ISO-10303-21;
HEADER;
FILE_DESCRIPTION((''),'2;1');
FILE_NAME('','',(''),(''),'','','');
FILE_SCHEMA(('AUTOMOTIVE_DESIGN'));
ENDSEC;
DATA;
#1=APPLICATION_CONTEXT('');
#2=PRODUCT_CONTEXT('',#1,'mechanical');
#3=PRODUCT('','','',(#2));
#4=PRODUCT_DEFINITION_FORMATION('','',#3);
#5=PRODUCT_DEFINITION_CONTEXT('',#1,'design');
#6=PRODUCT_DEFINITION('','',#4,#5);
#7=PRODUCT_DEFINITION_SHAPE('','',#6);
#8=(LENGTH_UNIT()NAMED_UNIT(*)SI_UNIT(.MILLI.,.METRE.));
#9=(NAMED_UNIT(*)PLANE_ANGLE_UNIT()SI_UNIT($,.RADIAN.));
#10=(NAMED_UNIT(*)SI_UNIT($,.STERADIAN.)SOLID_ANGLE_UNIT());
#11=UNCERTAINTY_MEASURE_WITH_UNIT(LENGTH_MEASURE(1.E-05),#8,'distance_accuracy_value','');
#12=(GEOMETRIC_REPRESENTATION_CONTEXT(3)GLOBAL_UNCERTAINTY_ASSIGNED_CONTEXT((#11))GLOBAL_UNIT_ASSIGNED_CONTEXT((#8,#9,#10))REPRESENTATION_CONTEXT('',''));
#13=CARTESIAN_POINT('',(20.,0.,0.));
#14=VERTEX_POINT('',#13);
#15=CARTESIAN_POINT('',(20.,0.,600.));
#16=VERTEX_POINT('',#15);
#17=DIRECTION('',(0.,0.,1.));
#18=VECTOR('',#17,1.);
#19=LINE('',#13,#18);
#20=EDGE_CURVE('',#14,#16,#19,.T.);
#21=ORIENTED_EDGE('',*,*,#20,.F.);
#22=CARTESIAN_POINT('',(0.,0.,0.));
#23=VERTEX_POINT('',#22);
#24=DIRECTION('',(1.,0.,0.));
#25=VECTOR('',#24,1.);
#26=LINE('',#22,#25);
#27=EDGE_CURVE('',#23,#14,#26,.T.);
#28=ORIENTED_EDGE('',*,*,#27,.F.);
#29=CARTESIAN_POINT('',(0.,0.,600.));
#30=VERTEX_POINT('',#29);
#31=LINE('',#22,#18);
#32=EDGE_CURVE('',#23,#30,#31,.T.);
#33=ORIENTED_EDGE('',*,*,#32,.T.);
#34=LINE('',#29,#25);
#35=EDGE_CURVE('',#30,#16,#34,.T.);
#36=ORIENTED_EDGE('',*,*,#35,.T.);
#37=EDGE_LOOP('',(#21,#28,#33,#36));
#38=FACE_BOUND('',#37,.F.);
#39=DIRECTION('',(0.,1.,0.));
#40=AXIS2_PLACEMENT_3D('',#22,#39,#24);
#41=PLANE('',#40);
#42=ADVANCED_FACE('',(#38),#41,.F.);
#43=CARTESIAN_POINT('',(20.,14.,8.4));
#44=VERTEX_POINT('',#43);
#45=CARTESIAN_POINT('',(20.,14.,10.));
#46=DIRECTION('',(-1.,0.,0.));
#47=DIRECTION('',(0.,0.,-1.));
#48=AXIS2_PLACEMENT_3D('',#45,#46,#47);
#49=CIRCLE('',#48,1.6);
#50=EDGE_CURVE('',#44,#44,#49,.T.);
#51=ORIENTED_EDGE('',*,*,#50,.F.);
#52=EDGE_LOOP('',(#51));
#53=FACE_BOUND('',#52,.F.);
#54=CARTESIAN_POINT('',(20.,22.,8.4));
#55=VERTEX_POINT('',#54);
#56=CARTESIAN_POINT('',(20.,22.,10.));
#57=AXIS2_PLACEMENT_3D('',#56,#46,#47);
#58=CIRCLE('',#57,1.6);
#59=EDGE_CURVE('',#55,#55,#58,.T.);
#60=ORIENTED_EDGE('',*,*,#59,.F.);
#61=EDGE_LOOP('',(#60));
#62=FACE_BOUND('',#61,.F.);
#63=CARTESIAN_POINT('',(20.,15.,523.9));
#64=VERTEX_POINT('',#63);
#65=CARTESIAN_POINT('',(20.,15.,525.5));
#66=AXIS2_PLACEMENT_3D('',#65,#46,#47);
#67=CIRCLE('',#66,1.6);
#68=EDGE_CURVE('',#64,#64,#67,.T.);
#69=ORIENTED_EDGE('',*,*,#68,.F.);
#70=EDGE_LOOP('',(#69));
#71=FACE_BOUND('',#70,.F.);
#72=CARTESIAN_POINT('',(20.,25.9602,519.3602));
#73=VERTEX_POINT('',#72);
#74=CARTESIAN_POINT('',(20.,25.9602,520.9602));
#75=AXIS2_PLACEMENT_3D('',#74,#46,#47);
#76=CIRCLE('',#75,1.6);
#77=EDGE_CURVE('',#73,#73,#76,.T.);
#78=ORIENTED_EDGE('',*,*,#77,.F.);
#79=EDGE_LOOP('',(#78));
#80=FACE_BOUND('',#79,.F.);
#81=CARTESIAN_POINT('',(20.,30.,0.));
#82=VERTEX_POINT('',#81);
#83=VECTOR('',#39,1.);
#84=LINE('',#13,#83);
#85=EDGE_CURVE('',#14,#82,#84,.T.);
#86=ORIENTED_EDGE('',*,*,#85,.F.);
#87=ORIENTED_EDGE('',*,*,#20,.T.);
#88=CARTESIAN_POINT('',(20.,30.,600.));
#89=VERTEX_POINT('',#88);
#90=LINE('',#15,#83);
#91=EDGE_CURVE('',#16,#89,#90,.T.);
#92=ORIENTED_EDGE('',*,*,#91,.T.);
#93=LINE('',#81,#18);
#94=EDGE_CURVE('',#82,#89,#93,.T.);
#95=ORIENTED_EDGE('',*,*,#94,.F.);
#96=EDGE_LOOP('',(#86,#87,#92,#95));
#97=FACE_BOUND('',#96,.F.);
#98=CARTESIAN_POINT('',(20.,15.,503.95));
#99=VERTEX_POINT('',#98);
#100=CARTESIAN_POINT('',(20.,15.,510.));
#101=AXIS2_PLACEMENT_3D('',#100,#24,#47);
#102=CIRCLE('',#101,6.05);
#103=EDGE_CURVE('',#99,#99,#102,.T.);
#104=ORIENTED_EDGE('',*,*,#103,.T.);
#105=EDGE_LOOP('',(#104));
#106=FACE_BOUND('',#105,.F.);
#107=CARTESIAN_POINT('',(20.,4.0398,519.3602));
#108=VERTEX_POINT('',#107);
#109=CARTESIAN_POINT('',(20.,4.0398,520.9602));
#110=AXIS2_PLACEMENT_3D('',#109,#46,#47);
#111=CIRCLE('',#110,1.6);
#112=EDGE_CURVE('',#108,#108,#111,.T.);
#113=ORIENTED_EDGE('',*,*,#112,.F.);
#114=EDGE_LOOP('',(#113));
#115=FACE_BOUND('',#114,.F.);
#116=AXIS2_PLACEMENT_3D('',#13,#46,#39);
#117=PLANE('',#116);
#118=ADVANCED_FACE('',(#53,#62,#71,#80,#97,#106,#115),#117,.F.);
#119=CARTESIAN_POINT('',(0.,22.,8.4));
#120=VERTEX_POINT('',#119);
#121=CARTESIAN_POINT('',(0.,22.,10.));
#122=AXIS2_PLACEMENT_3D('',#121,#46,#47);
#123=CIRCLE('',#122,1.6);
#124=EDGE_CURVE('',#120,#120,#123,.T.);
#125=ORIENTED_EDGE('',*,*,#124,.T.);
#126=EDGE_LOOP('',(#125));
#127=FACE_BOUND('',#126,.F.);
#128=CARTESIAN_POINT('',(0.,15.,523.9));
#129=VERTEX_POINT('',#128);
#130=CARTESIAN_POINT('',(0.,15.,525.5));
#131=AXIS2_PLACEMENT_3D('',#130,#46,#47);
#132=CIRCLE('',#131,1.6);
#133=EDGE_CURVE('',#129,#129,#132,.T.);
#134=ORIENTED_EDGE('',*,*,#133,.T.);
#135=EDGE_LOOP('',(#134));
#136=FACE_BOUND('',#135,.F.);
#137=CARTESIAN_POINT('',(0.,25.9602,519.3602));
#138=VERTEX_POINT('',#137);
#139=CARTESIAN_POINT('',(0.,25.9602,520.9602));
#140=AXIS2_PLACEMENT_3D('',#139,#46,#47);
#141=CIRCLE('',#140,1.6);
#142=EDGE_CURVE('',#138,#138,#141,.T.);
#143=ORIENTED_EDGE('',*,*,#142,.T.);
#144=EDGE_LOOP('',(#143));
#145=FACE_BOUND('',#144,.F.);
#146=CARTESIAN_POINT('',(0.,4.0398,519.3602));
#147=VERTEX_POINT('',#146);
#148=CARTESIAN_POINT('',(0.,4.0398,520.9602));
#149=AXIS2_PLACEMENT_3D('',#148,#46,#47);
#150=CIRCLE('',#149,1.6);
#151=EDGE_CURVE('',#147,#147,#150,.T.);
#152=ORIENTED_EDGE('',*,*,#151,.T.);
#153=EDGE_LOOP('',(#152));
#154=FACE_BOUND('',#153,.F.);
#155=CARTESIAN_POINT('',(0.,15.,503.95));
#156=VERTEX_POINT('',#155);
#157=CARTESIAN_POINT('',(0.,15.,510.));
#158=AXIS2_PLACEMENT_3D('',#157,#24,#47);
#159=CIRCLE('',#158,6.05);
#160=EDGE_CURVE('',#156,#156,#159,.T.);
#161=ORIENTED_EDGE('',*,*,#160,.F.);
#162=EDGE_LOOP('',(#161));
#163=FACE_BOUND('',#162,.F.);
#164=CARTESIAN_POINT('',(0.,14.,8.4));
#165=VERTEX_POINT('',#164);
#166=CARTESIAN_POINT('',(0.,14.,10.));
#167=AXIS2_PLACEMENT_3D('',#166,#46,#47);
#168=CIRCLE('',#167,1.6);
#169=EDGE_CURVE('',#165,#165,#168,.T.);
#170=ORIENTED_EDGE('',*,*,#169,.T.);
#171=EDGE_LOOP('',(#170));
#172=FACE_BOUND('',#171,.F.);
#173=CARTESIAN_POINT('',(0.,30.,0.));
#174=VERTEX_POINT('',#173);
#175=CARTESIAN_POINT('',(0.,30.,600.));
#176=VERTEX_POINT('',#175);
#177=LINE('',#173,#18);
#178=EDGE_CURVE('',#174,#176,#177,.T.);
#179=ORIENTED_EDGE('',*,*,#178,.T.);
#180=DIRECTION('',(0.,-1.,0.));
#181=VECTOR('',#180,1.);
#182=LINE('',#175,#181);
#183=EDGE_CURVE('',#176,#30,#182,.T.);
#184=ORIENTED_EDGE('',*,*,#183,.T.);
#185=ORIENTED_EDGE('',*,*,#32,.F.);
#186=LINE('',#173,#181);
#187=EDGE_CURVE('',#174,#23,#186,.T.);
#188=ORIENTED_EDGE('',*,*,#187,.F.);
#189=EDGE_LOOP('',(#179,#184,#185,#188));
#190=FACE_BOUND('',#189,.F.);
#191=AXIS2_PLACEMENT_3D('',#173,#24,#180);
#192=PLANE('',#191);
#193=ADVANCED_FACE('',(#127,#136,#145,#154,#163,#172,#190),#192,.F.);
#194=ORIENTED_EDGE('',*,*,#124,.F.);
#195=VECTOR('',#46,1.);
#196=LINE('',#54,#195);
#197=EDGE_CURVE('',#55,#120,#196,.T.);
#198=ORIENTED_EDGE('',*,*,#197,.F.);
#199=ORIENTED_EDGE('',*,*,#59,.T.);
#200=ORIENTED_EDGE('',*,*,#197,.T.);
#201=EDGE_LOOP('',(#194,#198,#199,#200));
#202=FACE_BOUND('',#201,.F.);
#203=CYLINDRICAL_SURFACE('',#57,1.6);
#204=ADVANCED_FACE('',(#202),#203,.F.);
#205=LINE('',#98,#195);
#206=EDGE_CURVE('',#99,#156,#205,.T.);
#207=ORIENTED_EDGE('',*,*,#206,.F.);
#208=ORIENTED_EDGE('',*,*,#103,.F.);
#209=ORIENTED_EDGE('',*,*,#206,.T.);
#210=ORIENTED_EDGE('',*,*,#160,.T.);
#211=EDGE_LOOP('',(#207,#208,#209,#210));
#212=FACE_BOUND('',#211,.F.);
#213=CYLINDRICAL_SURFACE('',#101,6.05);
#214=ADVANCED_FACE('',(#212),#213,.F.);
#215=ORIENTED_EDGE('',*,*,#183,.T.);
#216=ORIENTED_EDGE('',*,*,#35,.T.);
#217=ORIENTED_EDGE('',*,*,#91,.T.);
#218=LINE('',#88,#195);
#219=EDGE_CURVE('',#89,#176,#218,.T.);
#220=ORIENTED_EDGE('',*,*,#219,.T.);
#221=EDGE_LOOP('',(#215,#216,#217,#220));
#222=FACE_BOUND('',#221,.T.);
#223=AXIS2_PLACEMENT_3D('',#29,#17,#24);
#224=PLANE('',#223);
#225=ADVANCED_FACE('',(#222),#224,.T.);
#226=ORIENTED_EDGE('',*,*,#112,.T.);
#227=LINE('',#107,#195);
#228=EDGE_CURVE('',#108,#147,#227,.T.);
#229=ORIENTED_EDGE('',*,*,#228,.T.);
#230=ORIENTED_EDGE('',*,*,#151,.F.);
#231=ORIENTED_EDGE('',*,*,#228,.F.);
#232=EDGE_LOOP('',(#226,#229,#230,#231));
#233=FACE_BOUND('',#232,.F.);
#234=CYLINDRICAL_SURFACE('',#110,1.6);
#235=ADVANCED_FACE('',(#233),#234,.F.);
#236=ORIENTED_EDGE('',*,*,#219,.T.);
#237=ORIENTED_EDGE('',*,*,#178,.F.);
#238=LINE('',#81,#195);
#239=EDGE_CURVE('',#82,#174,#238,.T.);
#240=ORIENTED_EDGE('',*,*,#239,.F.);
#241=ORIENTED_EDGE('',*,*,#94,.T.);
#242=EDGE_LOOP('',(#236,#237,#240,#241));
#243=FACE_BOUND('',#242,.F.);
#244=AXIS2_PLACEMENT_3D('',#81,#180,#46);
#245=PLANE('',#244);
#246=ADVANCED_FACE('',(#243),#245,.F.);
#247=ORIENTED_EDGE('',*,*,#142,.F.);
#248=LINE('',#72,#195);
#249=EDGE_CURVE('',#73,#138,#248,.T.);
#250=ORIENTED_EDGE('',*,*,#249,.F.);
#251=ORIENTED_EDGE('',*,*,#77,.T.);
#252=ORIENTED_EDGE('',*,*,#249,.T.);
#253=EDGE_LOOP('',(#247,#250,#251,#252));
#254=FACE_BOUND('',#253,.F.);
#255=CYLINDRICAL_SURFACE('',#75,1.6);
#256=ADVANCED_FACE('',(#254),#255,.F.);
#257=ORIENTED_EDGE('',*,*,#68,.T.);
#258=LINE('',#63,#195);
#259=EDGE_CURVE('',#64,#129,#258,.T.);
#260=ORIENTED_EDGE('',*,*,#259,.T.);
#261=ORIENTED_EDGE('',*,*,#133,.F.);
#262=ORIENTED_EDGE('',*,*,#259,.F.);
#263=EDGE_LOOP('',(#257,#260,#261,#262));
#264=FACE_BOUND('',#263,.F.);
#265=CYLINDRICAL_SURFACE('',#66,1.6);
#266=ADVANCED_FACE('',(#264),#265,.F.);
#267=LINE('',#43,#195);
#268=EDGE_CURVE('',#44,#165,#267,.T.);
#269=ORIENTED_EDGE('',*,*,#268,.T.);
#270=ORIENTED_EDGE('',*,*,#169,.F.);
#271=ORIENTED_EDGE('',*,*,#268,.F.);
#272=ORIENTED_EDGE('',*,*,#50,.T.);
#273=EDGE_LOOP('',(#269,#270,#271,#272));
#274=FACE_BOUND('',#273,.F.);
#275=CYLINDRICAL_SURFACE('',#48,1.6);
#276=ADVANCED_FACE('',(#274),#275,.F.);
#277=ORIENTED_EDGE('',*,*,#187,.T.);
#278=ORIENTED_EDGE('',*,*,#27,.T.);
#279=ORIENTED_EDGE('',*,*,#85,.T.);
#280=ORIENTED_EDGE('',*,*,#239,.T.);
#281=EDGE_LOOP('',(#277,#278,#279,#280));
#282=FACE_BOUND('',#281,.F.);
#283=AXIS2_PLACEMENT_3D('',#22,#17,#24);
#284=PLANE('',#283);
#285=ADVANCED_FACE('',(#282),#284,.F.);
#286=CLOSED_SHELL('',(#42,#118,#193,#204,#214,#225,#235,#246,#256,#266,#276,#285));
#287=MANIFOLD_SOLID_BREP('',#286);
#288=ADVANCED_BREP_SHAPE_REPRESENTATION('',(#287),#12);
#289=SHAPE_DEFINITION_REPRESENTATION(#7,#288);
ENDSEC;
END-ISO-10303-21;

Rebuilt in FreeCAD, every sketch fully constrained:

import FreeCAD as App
import Part
import Sketcher
Q = App.Units.Quantity

doc = App.newDocument("Part")
body = doc.addObject("PartDesign::Body", "Body")

# Sketch on XY plane
sketch1 = body.newObject("Sketcher::SketchObject", "Sketch")
sketch1.AttachmentSupport = (doc.getObject("XY_Plane"), [""])
sketch1.MapMode = "FlatFace"
sketch1.addGeometry([
    Part.LineSegment(App.Vector(0, 30, 0), App.Vector(0, 0, 0)),
    Part.LineSegment(App.Vector(0, 0, 0), App.Vector(20, 0, 0)),
    Part.LineSegment(App.Vector(20, 0, 0), App.Vector(20, 30, 0)),
    Part.LineSegment(App.Vector(20, 30, 0), App.Vector(0, 30, 0)),
], False)
sketch1.addConstraint([
    Sketcher.Constraint("Coincident", 0, 2, 1, 1),
    Sketcher.Constraint("Coincident", 1, 2, 2, 1),
    Sketcher.Constraint("Coincident", 2, 2, 3, 1),
    Sketcher.Constraint("Coincident", 3, 2, 0, 1),
    Sketcher.Constraint("Vertical", 0),
    Sketcher.Constraint("Horizontal", 1),
    Sketcher.Constraint("Vertical", 2),
    Sketcher.Constraint("Horizontal", 3),
    Sketcher.Constraint("Coincident", 0, 2, -1, 1),
    Sketcher.Constraint("DistanceX", 1, 1, 1, 2, Q("20 mm")),
    Sketcher.Constraint("DistanceY", 0, 2, 0, 1, Q("30 mm")),
])
pad1 = body.newObject("PartDesign::Pad", "Pad")
pad1.Profile = sketch1
pad1.Length = 600

# Sketch on YZ plane
sketch2 = body.newObject("Sketcher::SketchObject", "Sketch001")
sketch2.AttachmentSupport = (doc.getObject("YZ_Plane"), [""])
sketch2.MapMode = "FlatFace"
sketch2.AttachmentOffset = App.Placement(App.Vector(0, 0, 20), App.Rotation())
sketch2.addGeometry(Part.Circle(App.Vector(15, 510, 0), App.Vector(0, 0, 1), 6), False)
sketch2.addConstraint([
    Sketcher.Constraint("Diameter", 0, Q("12.1 mm")),
    Sketcher.Constraint("DistanceX", -1, 1, 0, 3, Q("15 mm")),
    Sketcher.Constraint("DistanceY", -1, 1, 0, 3, Q("510 mm")),
])
pocket1 = body.newObject("PartDesign::Pocket", "Pocket")
pocket1.Profile = sketch2
pocket1.Length = 600

# Sketch on YZ plane
sketch3 = body.newObject("Sketcher::SketchObject", "Sketch002")
sketch3.AttachmentSupport = (doc.getObject("YZ_Plane"), [""])
sketch3.MapMode = "FlatFace"
sketch3.AttachmentOffset = App.Placement(App.Vector(0, 0, 20), App.Rotation())
sketch3.addGeometry([
    Part.Circle(App.Vector(22, 10, 0), App.Vector(0, 0, 1), 1.6),
    Part.Circle(App.Vector(14, 10, 0), App.Vector(0, 0, 1), 1.6),
], False)
sketch3.addConstraint([
    Sketcher.Constraint("Equal", 0, 1),
    Sketcher.Constraint("Horizontal", 0, 3, 1, 3),
    Sketcher.Constraint("Diameter", 0, Q("3.2 mm")),
    Sketcher.Constraint("DistanceX", -1, 1, 0, 3, Q("22 mm")),
    Sketcher.Constraint("DistanceY", -1, 1, 0, 3, Q("10 mm")),
    Sketcher.Constraint("DistanceX", -1, 1, 1, 3, Q("14 mm")),
])
doc.recompute()
hole = body.newObject("PartDesign::Hole", "Hole")
hole.Profile = sketch3
hole.ThreadType = "None"
hole.Diameter = 3.2
hole.DepthType = "ThroughAll"

# Sketch on YZ plane
sketch4 = body.newObject("Sketcher::SketchObject", "Sketch003")
sketch4.AttachmentSupport = (doc.getObject("YZ_Plane"), [""])
sketch4.MapMode = "FlatFace"
sketch4.AttachmentOffset = App.Placement(App.Vector(0, 0, 20), App.Rotation())
sketch4.addGeometry([
    Part.Circle(App.Vector(15, 525.5, 0), App.Vector(0, 0, 1), 1.6),
    Part.Circle(App.Vector(26, 521, 0), App.Vector(0, 0, 1), 1.6),
    Part.Circle(App.Vector(4, 521, 0), App.Vector(0, 0, 1), 1.6),
], False)
sketch4.addConstraint([
    Sketcher.Constraint("Equal", 0, 1),
    Sketcher.Constraint("Equal", 1, 2),
    Sketcher.Constraint("Horizontal", 1, 3, 2, 3),
    Sketcher.Constraint("Diameter", 0, Q("3.2 mm")),
    Sketcher.Constraint("DistanceX", -1, 1, 0, 3, Q("15 mm")),
    Sketcher.Constraint("DistanceY", -1, 1, 0, 3, Q("525.5 mm")),
    Sketcher.Constraint("DistanceX", -1, 1, 1, 3, Q("25.9602 mm")),
    Sketcher.Constraint("DistanceY", -1, 1, 1, 3, Q("520.9602 mm")),
    Sketcher.Constraint("DistanceX", -1, 1, 2, 3, Q("4.0398 mm")),
])
doc.recompute()
hole2 = body.newObject("PartDesign::Hole", "Hole001")
hole2.Profile = sketch4
hole2.ThreadType = "None"
hole2.Diameter = 3.2
hole2.DepthType = "ThroughAll"

doc.recompute()
